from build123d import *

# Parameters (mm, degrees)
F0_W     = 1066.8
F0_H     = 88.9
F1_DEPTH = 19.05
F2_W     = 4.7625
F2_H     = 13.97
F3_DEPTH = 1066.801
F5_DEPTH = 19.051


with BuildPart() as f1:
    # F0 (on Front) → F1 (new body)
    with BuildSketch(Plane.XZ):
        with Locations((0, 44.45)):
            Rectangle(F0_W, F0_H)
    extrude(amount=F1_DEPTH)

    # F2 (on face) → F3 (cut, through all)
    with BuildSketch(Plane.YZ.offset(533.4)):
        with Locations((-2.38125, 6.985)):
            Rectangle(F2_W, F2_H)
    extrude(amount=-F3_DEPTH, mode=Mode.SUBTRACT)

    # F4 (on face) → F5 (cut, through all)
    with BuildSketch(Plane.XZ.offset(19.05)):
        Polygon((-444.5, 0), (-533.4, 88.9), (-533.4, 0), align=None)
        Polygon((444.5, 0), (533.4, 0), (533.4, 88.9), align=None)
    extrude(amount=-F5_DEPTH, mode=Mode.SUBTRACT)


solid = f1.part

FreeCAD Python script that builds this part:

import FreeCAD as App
import Part
import Sketcher
Q = App.Units.Quantity


def add_polygon(sketch, points):
    """Adds a closed chain of lines whose ends are joined by coincident constraints."""
    first, n = sketch.GeometryCount, len(points)
    for a, b in zip(points, points[1:] + points[:1]):
        sketch.addGeometry(Part.LineSegment(App.Vector(*a, 0), App.Vector(*b, 0)), False)
    for i in range(n):
        sketch.addConstraint(Sketcher.Constraint("Coincident", first + i, 2, first + (i + 1) % n, 1))

doc = App.newDocument("Part")
params = doc.addObject("Spreadsheet::Sheet", "Params")
for row, (alias, value) in enumerate([
    ("sketch1_width", "42 in"),
    ("sketch1_height", "3.5 in"),
    ("pad1_length", "0.75 in"),
    ("sketch2_height", "0.55 in"),
    ("sketch2_width", "0.1875 in"),
    ("sketch3_width", "3.5 in"),
], start=1):
    params.set(f"A{row}", alias)
    params.set(f"B{row}", "=" + value)
    params.setAlias(f"B{row}", alias)

body = doc.addObject("PartDesign::Body", "Body")

# Sketch on XZ plane
sketch1 = body.newObject("Sketcher::SketchObject", "Sketch")
sketch1.AttachmentSupport = (doc.getObject("XZ_Plane"), [""])
sketch1.MapMode = "FlatFace"
add_polygon(sketch1, [(-533, 89), (-533, 0), (533, 0), (533, 89)])  # lines 0-3
sketch1.addConstraint([
    Sketcher.Constraint("Vertical", 0),
    Sketcher.Constraint("Horizontal", 1),
    Sketcher.Constraint("Vertical", 2),
    Sketcher.Constraint("Horizontal", 3),
    Sketcher.Constraint("Symmetric", 0, 2, 1, 2, -1, 1),
    Sketcher.Constraint("DistanceX", 1, 1, 1, 2, Q("42 in")),
    Sketcher.Constraint("DistanceY", 0, 2, 0, 1, Q("3.5 in")),
])
sketch1.setExpression("Constraints[9]", "Params.sketch1_width")
sketch1.setExpression("Constraints[10]", "Params.sketch1_height")
pad1 = body.newObject("PartDesign::Pad", "Pad")
pad1.Profile = sketch1
pad1.setExpression("Length", "Params.pad1_length")

# Sketch on YZ plane
sketch2 = body.newObject("Sketcher::SketchObject", "Sketch001")
sketch2.AttachmentSupport = (doc.getObject("YZ_Plane"), [""])
sketch2.MapMode = "FlatFace"
sketch2.AttachmentOffset = App.Placement(App.Vector(0, 0, 21 * 25.4), App.Rotation())
add_polygon(sketch2, [(-4.8, 14), (-4.8, 0), (0, 0), (0, 14)])  # lines 0-3
sketch2.addConstraint([
    Sketcher.Constraint("Vertical", 0),
    Sketcher.Constraint("Horizontal", 1),
    Sketcher.Constraint("Vertical", 2),
    Sketcher.Constraint("Horizontal", 3),
    Sketcher.Constraint("Coincident", 1, 2, -1, 1),
    Sketcher.Constraint("DistanceY", 0, 2, 0, 1, Q("0.55 in")),
    Sketcher.Constraint("DistanceX", 1, 1, 1, 2, Q("0.1875 in")),
])
sketch2.setExpression("Constraints[9]", "Params.sketch2_height")
sketch2.setExpression("Constraints[10]", "Params.sketch2_width")
pocket1 = body.newObject("PartDesign::Pocket", "Pocket")
pocket1.Profile = sketch2
pocket1.Type = "ThroughAll"

# Sketch on XZ plane
sketch3 = body.newObject("Sketcher::SketchObject", "Sketch002")
sketch3.AttachmentSupport = (doc.getObject("XZ_Plane"), [""])
sketch3.MapMode = "FlatFace"
sketch3.AttachmentOffset = App.Placement(App.Vector(0, 0, 0.75 * 25.4), App.Rotation())
add_polygon(sketch3, [(-444, 0), (-533, 89), (-533, 0)])  # lines 0-2
add_polygon(sketch3, [(444, 0), (533, 0), (533, 89)])  # lines 3-5
sketch3.addConstraint([
    Sketcher.Constraint("Vertical", 1),
    Sketcher.Constraint("Horizontal", 2),
    Sketcher.Constraint("Horizontal", 3),
    Sketcher.Constraint("Vertical", 4),
    Sketcher.Constraint("Symmetric", 1, 2, 3, 2, -1, 1),
    Sketcher.Constraint("Symmetric", 2, 2, 5, 2, -2),
    Sketcher.Constraint("Perpendicular", 0, 5),
    Sketcher.Constraint("Horizontal", 0, 2, 4, 2),
    Sketcher.Constraint("DistanceX", 2, 1, 2, 2, Q("3.5 in")),
    Sketcher.Constraint("DistanceX", 0, 2, -1, 1, Q("21 in")),
])
sketch3.setExpression("Constraints[14]", "Params.sketch3_width")
pocket2 = body.newObject("PartDesign::Pocket", "Pocket001")
pocket2.Profile = sketch3
pocket2.Type = "ThroughAll"

doc.recompute()
